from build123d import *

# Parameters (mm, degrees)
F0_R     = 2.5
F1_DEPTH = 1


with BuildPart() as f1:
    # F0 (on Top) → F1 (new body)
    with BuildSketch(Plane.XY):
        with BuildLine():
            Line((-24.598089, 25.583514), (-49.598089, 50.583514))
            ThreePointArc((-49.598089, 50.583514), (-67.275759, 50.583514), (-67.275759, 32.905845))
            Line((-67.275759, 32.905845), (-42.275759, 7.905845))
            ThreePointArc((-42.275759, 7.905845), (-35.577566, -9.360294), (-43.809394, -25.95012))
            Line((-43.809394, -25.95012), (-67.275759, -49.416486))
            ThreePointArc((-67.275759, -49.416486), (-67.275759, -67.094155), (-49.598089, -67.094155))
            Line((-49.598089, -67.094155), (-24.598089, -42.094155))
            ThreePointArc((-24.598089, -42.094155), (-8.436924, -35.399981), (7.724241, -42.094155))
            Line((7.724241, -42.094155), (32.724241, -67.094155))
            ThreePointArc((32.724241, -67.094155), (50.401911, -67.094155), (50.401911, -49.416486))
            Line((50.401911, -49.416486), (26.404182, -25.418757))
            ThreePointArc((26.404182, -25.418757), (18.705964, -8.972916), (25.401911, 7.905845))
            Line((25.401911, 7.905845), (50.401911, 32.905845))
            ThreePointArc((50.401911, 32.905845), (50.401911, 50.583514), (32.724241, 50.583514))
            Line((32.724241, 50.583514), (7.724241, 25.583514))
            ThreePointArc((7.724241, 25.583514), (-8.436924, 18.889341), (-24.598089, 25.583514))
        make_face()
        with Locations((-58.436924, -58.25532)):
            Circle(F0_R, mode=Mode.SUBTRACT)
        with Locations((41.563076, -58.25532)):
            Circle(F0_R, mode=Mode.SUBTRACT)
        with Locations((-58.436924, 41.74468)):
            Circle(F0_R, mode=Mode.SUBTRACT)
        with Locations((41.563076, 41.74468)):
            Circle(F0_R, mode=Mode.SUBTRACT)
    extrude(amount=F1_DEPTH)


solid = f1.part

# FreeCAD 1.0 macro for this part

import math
import FreeCAD as App
import Part
import Sketcher

doc = App.newDocument("Part")
body = doc.addObject("PartDesign::Body", "Body")

# Sketch on XY plane
sketch1 = body.newObject("Sketcher::SketchObject", "Sketch")
sketch1.AttachmentSupport = (doc.getObject("XY_Plane"), [""])
sketch1.MapMode = "FlatFace"
sketch1.addGeometry(Part.LineSegment(App.Vector(-24.598089, 25.583514, 0), App.Vector(-49.598089, 50.583514, 0)), False)
sketch1.addGeometry(Part.ArcOfCircle(Part.Circle(App.Vector(-58.436924, 41.744679, 0), App.Vector(0, 0, 1), 12.5), math.radians(44.999998), math.radians(224.999998)), False)
sketch1.addGeometry(Part.LineSegment(App.Vector(-67.275759, 32.905845, 0), App.Vector(-42.275759, 7.905845, 0)), False)
sketch1.addGeometry(Part.ArcOfCircle(Part.Circle(App.Vector(-58.503386, -8.321781, 0), App.Vector(0, 0, 1), 22.94933), math.radians(-50.187314), math.radians(44.999999)), False)
sketch1.addGeometry(Part.LineSegment(App.Vector(-43.809394, -25.95012, 0), App.Vector(-67.275759, -49.416486, 0)), False)
sketch1.addGeometry(Part.ArcOfCircle(Part.Circle(App.Vector(-58.436924, -58.255321, 0), App.Vector(0, 0, 1), 12.5), math.radians(135.000002), math.radians(315.000002)), False)
sketch1.addGeometry(Part.LineSegment(App.Vector(-49.598089, -67.094155, 0), App.Vector(-24.598089, -42.094155, 0)), False)
sketch1.addGeometry(Part.ArcOfCircle(Part.Circle(App.Vector(-8.436924, -58.255319, 0), App.Vector(0, 0, 1), 22.855338), math.radians(44.999998), math.radians(135.000002)), False)
sketch1.addGeometry(Part.LineSegment(App.Vector(7.724241, -42.094155, 0), App.Vector(32.724241, -67.094155, 0)), False)
sketch1.addGeometry(Part.ArcOfCircle(Part.Circle(App.Vector(41.563076, -58.255321, 0), App.Vector(0, 0, 1), 12.5), math.radians(-135.000002), math.radians(44.999998)), False)
sketch1.addGeometry(Part.LineSegment(App.Vector(50.401911, -49.416486, 0), App.Vector(26.404182, -25.418757, 0)), False)
sketch1.addGeometry(Part.ArcOfCircle(Part.Circle(App.Vector(41.59234, -8.284585, 0), App.Vector(0, 0, 1), 22.896725), math.radians(134.999999), math.radians(228.445419)), False)
sketch1.addGeometry(Part.LineSegment(App.Vector(25.401911, 7.905845, 0), App.Vector(50.401911, 32.905845, 0)), False)
sketch1.addGeometry(Part.ArcOfCircle(Part.Circle(App.Vector(41.563076, 41.744679, 0), App.Vector(0, 0, 1), 12.5), math.radians(-44.999998), math.radians(135.000002)), False)
sketch1.addGeometry(Part.LineSegment(App.Vector(32.724241, 50.583514, 0), App.Vector(7.724241, 25.583514, 0)), False)
sketch1.addGeometry(Part.ArcOfCircle(Part.Circle(App.Vector(-8.436924, 41.744681, 0), App.Vector(0, 0, 1), 22.85534), math.radians(-134.999996), math.radians(-45.000004)), False)
sketch1.addGeometry(Part.Circle(App.Vector(-58.436924, -58.25532, 0), App.Vector(0, 0, 1), 2.5), False)
sketch1.addGeometry(Part.Circle(App.Vector(41.563076, -58.25532, 0), App.Vector(0, 0, 1), 2.5), False)
sketch1.addGeometry(Part.Circle(App.Vector(-58.436924, 41.74468, 0), App.Vector(0, 0, 1), 2.5), False)
sketch1.addGeometry(Part.Circle(App.Vector(41.563076, 41.74468, 0), App.Vector(0, 0, 1), 2.5), False)
sketch1.addConstraint(Sketcher.Constraint("Tangent", 0, 2, 1, 1))
sketch1.addConstraint(Sketcher.Constraint("Tangent", 1, 2, 2, 1))
sketch1.addConstraint(Sketcher.Constraint("Tangent", 2, 2, 3, 2))
sketch1.addConstraint(Sketcher.Constraint("Coincident", 3, 1, 4, 1))
sketch1.addConstraint(Sketcher.Constraint("Tangent", 4, 2, 5, 1))
sketch1.addConstraint(Sketcher.Constraint("Tangent", 5, 2, 6, 1))
sketch1.addConstraint(Sketcher.Constraint("Tangent", 6, 2, 7, 2))
sketch1.addConstraint(Sketcher.Constraint("Tangent", 7, 1, 8, 1))
sketch1.addConstraint(Sketcher.Constraint("Tangent", 8, 2, 9, 1))
sketch1.addConstraint(Sketcher.Constraint("Tangent", 9, 2, 10, 1))
sketch1.addConstraint(Sketcher.Constraint("Coincident", 10, 2, 11, 2))
sketch1.addConstraint(Sketcher.Constraint("Tangent", 11, 1, 12, 1))
sketch1.addConstraint(Sketcher.Constraint("Tangent", 12, 2, 13, 1))
sketch1.addConstraint(Sketcher.Constraint("Tangent", 13, 2, 14, 1))
sketch1.addConstraint(Sketcher.Constraint("Tangent", 14, 2, 15, 2))
sketch1.addConstraint(Sketcher.Constraint("Tangent", 15, 1, 0, 1))
sketch1.addConstraint(Sketcher.Constraint("Coincident", 16, 3, 5, 3))
sketch1.addConstraint(Sketcher.Constraint("Coincident", 17, 3, 9, 3))
sketch1.addConstraint(Sketcher.Constraint("Coincident", 18, 3, 1, 3))
sketch1.addConstraint(Sketcher.Constraint("Coincident", 19, 3, 13, 3))
sketch1.addConstraint(Sketcher.Constraint("Equal", 1, 5))
sketch1.addConstraint(Sketcher.Constraint("Equal", 5, 9))
sketch1.addConstraint(Sketcher.Constraint("Equal", 9, 13))
sketch1.addConstraint(Sketcher.Constraint("Equal", 16, 17))
sketch1.addConstraint(Sketcher.Constraint("Equal", 17, 18))
sketch1.addConstraint(Sketcher.Constraint("Equal", 18, 19))
sketch1.addConstraint(Sketcher.Constraint("Parallel", 0, 2))
sketch1.addConstraint(Sketcher.Constraint("Perpendicular", 2, 4))
sketch1.addConstraint(Sketcher.Constraint("Parallel", 4, 6))
sketch1.addConstraint(Sketcher.Constraint("Perpendicular", 6, 8))
sketch1.addConstraint(Sketcher.Constraint("Parallel", 8, 10))
sketch1.addConstraint(Sketcher.Constraint("Perpendicular", 10, 12))
sketch1.addConstraint(Sketcher.Constraint("Parallel", 12, 14))
sketch1.addConstraint(Sketcher.Constraint("Horizontal", 5, 3, 7, 3))
sketch1.addConstraint(Sketcher.Constraint("Horizontal", 7, 3, 9, 3))
sketch1.addConstraint(Sketcher.Constraint("Horizontal", 1, 3, 13, 3))
sketch1.addConstraint(Sketcher.Constraint("Horizontal", 13, 3, 15, 3))
sketch1.addConstraint(Sketcher.Constraint("Horizontal", 6, 2, 7, 1))
sketch1.addConstraint(Sketcher.Constraint("Horizontal", 2, 2, 11, 1))
sketch1.addConstraint(Sketcher.Constraint("Vertical", 1, 3, 5, 3))
sketch1.addConstraint(Sketcher.Constraint("Vertical", 9, 3, 13, 3))
sketch1.addConstraint(Sketcher.Constraint("Equal", 0, 2))
sketch1.addConstraint(Sketcher.Constraint("Diameter", 16, 5.0))
sketch1.addConstraint(Sketcher.Constraint("Radius", 1, 12.5))
sketch1.addConstraint(Sketcher.Constraint("DistanceY", 5, 3, 1, 3, 100.0))
sketch1.addConstraint(Sketcher.Constraint("DistanceX", 5, 3, 7, 3, 50.0))
sketch1.addConstraint(Sketcher.Constraint("Radius", 3, 22.94933))
sketch1.addConstraint(Sketcher.Constraint("Radius", 11, 22.896725))
sketch1.addConstraint(Sketcher.Constraint("DistanceY", -1, 1, 1, 3, 41.744679))
sketch1.addConstraint(Sketcher.Constraint("DistanceX", -1, 1, 11, 3, 41.59234))
pad1 = body.newObject("PartDesign::Pad", "Pad")
pad1.Profile = sketch1
pad1.Length = 1

doc.recompute()
